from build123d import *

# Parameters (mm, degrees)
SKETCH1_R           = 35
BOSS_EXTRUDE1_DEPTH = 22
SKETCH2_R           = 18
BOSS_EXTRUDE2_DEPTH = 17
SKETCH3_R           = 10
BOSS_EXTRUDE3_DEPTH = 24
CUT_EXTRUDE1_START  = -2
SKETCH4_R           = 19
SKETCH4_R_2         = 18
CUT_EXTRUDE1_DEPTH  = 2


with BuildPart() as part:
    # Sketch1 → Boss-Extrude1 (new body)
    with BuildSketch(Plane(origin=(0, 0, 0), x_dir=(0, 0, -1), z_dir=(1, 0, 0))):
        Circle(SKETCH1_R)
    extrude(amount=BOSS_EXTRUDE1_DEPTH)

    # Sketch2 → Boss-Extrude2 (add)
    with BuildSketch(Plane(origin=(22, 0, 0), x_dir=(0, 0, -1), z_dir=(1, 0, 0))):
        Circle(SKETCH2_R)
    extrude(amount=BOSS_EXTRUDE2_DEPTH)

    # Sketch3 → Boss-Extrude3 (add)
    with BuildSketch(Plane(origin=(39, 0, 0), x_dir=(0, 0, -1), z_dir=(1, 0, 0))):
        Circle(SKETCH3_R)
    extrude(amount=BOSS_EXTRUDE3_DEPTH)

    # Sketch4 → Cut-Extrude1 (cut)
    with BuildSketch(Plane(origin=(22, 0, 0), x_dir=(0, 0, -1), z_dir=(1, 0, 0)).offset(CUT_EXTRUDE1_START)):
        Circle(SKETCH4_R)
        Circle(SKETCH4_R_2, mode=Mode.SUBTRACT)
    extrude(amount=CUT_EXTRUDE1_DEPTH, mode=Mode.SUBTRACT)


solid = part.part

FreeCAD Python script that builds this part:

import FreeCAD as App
import Part
import Sketcher
from FreeCAD import Vector
Q = App.Units.Quantity

doc = App.newDocument("Part")
body = doc.addObject("PartDesign::Body", "Body")

sketch1 = body.newObject("Sketcher::SketchObject", "Sketch")
sketch1.AttachmentSupport = (doc.getObject("YZ_Plane"), [""])
sketch1.MapMode = "FlatFace"
sketch1.addGeometry(Part.Circle(Vector(0, 0, 0), Vector(0, 0, 1), 35), False)
sketch1.addConstraint([
    Sketcher.Constraint("Coincident", 0, 3, -1, 1),
    Sketcher.Constraint("Diameter", 0, Q("70 mm")),
])
pad1 = body.newObject("PartDesign::Pad", "Pad")
pad1.Profile = sketch1
pad1.Length = 22

sketch2 = body.newObject("Sketcher::SketchObject", "Sketch001")
sketch2.AttachmentSupport = (doc.getObject("YZ_Plane"), [""])
sketch2.MapMode = "FlatFace"
sketch2.AttachmentOffset = App.Placement(Vector(0, 0, 22), App.Rotation())
sketch2.addGeometry(Part.Circle(Vector(0, 0, 0), Vector(0, 0, 1), 18), False)
sketch2.addConstraint([
    Sketcher.Constraint("Coincident", 0, 3, -1, 1),
    Sketcher.Constraint("Diameter", 0, Q("36 mm")),
])
pad2 = body.newObject("PartDesign::Pad", "Pad001")
pad2.Profile = sketch2
pad2.Length = 17

sketch3 = body.newObject("Sketcher::SketchObject", "Sketch002")
sketch3.AttachmentSupport = (doc.getObject("YZ_Plane"), [""])
sketch3.MapMode = "FlatFace"
sketch3.AttachmentOffset = App.Placement(Vector(0, 0, 39), App.Rotation())
sketch3.addGeometry(Part.Circle(Vector(0, 0, 0), Vector(0, 0, 1), 10), False)
sketch3.addConstraint([
    Sketcher.Constraint("Coincident", 0, 3, -1, 1),
    Sketcher.Constraint("Diameter", 0, Q("20 mm")),
])
pad3 = body.newObject("PartDesign::Pad", "Pad002")
pad3.Profile = sketch3
pad3.Length = 24

sketch4 = body.newObject("Sketcher::SketchObject", "Sketch003")
sketch4.AttachmentSupport = (doc.getObject("YZ_Plane"), [""])
sketch4.MapMode = "FlatFace"
sketch4.AttachmentOffset = App.Placement(Vector(0, 0, 20), App.Rotation())
sketch4.addGeometry([
    Part.Circle(Vector(0, 0, 0), Vector(0, 0, 1), 19),
    Part.Circle(Vector(0, 0, 0), Vector(0, 0, 1), 18),
], False)
sketch4.addConstraint([
    Sketcher.Constraint("Coincident", 0, 3, -1, 1),
    Sketcher.Constraint("Coincident", 1, 3, -1, 1),
    Sketcher.Constraint("Diameter", 0, Q("38 mm")),
    Sketcher.Constraint("Diameter", 1, Q("36 mm")),
])
pocket1 = body.newObject("PartDesign::Pocket", "Pocket")
pocket1.Profile = sketch4
pocket1.Length = 2
pocket1.Reversed = True

doc.recompute()
